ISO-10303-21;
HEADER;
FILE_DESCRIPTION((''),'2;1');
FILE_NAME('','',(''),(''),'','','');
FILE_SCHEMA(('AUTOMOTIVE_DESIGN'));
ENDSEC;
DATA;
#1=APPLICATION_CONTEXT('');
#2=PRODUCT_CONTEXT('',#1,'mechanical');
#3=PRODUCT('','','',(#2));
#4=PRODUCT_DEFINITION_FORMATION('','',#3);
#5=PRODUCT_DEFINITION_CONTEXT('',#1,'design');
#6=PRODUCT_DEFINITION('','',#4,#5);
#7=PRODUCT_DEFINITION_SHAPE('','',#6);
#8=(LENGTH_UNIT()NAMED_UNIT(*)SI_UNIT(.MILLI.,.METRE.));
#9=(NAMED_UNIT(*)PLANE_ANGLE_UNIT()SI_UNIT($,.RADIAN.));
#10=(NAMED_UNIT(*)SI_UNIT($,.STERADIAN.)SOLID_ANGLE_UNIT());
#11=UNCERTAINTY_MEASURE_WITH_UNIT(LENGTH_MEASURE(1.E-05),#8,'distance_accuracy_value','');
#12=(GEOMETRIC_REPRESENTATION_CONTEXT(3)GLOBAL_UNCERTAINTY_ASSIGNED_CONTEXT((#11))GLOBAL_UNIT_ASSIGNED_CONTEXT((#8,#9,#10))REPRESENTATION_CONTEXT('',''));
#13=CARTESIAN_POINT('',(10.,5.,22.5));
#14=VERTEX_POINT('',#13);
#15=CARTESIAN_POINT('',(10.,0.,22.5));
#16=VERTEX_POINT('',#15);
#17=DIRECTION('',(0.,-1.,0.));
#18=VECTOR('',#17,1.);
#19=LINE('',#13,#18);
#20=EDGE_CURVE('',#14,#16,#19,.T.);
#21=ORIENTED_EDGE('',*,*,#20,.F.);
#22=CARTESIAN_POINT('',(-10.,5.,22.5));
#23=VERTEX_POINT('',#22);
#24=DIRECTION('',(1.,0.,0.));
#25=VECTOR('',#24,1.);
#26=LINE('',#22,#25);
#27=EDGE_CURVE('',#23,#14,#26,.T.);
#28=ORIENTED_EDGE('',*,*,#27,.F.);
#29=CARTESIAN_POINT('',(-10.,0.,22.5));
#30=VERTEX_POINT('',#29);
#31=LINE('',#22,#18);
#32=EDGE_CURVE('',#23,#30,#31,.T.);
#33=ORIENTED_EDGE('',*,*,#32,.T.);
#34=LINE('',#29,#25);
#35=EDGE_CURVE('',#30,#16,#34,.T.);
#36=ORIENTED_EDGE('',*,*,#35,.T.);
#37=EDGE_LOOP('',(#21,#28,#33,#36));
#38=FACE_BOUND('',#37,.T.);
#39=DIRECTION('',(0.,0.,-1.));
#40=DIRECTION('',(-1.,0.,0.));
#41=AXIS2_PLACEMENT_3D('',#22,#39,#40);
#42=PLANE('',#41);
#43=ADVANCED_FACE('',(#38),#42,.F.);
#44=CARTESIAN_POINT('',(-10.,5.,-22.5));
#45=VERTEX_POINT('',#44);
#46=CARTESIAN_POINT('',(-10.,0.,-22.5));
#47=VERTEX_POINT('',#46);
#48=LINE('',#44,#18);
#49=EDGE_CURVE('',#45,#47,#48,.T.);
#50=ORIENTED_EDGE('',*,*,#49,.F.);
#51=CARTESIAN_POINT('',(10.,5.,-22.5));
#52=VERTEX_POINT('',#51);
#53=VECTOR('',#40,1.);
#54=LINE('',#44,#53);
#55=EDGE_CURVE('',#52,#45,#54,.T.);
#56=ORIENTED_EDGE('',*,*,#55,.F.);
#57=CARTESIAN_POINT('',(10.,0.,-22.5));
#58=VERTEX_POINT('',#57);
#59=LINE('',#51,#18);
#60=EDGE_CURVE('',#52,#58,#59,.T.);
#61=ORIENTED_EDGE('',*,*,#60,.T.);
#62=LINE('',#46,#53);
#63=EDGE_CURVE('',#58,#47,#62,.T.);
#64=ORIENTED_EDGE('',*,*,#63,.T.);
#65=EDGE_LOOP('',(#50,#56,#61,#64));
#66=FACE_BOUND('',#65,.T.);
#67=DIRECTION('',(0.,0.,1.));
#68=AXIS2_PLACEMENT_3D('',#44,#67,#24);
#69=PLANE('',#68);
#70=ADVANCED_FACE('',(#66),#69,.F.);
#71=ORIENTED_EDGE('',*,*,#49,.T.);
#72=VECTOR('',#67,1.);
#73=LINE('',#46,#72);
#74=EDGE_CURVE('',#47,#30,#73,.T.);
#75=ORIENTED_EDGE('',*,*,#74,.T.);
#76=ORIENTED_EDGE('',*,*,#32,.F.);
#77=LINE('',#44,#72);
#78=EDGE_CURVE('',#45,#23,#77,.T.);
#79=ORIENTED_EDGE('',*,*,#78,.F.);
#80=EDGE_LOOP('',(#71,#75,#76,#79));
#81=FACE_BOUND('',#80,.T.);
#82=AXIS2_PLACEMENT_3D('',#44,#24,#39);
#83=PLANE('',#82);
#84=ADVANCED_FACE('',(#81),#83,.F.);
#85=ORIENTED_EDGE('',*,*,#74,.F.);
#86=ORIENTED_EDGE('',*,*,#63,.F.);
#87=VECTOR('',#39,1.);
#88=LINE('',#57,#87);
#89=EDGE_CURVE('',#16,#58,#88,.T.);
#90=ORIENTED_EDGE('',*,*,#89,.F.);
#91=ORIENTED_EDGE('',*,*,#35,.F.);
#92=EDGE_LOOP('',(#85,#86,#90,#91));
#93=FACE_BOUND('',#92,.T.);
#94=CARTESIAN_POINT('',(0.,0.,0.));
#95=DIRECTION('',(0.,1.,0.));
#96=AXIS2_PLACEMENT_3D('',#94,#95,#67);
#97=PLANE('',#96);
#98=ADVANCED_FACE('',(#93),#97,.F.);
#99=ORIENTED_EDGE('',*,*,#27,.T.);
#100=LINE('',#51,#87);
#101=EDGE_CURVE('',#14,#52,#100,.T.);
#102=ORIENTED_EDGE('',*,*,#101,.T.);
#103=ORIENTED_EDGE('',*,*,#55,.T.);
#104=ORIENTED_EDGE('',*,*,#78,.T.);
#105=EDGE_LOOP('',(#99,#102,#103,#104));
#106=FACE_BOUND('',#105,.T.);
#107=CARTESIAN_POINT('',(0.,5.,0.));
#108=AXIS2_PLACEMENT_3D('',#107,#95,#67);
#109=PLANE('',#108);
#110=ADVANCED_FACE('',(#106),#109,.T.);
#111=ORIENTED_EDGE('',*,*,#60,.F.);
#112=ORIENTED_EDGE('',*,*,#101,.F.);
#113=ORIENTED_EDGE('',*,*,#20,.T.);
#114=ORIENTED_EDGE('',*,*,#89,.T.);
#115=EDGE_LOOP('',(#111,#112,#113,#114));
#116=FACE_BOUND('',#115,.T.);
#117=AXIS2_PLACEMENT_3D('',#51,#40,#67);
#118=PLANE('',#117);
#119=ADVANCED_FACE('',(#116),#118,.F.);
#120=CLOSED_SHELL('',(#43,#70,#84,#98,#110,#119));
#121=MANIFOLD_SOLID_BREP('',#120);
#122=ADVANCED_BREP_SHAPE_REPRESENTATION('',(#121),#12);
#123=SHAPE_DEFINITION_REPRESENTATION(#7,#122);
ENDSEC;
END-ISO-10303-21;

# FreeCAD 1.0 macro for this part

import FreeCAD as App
import Part
import Sketcher
from FreeCAD import Vector
Q = App.Units.Quantity

doc = App.newDocument("Part")
body = doc.addObject("PartDesign::Body", "Body")

# Sketch on XZ plane
sketch1 = doc.addObject("Sketcher::SketchObject", "Sketch")
body.addObject(sketch1)
sketch1.AttachmentSupport = (doc.XZ_Plane, [""])
sketch1.MapMode = "FlatFace"
sketch1.addGeometry(Part.LineSegment(Vector(-10, -22.5, 0), Vector(-10, 22.5, 0)), False)
sketch1.addGeometry(Part.LineSegment(Vector(-10, 22.5, 0), Vector(10, 22.5, 0)), False)
sketch1.addGeometry(Part.LineSegment(Vector(10, 22.5, 0), Vector(10, -22.5, 0)), False)
sketch1.addGeometry(Part.LineSegment(Vector(10, -22.5, 0), Vector(-10, -22.5, 0)), False)
sketch1.addConstraint(Sketcher.Constraint("Coincident", 0, 2, 1, 1))
sketch1.addConstraint(Sketcher.Constraint("Coincident", 1, 2, 2, 1))
sketch1.addConstraint(Sketcher.Constraint("Coincident", 2, 2, 3, 1))
sketch1.addConstraint(Sketcher.Constraint("Coincident", 3, 2, 0, 1))
sketch1.addConstraint(Sketcher.Constraint("Vertical", 0))
sketch1.addConstraint(Sketcher.Constraint("Horizontal", 1))
sketch1.addConstraint(Sketcher.Constraint("Vertical", 2))
sketch1.addConstraint(Sketcher.Constraint("Horizontal", 3))
sketch1.addConstraint(Sketcher.Constraint("Symmetric", 0, 2, 2, 2, -1, 1))
sketch1.addConstraint(Sketcher.Constraint("DistanceX", 1, 1, 1, 2, Q("20 mm")))
sketch1.addConstraint(Sketcher.Constraint("DistanceY", 0, 1, 0, 2, Q("45 mm")))
pad1 = doc.addObject("PartDesign::Pad", "Pad")
body.addObject(pad1)
pad1.Profile = sketch1
pad1.Length = 5
pad1.Reversed = True

doc.recompute()
